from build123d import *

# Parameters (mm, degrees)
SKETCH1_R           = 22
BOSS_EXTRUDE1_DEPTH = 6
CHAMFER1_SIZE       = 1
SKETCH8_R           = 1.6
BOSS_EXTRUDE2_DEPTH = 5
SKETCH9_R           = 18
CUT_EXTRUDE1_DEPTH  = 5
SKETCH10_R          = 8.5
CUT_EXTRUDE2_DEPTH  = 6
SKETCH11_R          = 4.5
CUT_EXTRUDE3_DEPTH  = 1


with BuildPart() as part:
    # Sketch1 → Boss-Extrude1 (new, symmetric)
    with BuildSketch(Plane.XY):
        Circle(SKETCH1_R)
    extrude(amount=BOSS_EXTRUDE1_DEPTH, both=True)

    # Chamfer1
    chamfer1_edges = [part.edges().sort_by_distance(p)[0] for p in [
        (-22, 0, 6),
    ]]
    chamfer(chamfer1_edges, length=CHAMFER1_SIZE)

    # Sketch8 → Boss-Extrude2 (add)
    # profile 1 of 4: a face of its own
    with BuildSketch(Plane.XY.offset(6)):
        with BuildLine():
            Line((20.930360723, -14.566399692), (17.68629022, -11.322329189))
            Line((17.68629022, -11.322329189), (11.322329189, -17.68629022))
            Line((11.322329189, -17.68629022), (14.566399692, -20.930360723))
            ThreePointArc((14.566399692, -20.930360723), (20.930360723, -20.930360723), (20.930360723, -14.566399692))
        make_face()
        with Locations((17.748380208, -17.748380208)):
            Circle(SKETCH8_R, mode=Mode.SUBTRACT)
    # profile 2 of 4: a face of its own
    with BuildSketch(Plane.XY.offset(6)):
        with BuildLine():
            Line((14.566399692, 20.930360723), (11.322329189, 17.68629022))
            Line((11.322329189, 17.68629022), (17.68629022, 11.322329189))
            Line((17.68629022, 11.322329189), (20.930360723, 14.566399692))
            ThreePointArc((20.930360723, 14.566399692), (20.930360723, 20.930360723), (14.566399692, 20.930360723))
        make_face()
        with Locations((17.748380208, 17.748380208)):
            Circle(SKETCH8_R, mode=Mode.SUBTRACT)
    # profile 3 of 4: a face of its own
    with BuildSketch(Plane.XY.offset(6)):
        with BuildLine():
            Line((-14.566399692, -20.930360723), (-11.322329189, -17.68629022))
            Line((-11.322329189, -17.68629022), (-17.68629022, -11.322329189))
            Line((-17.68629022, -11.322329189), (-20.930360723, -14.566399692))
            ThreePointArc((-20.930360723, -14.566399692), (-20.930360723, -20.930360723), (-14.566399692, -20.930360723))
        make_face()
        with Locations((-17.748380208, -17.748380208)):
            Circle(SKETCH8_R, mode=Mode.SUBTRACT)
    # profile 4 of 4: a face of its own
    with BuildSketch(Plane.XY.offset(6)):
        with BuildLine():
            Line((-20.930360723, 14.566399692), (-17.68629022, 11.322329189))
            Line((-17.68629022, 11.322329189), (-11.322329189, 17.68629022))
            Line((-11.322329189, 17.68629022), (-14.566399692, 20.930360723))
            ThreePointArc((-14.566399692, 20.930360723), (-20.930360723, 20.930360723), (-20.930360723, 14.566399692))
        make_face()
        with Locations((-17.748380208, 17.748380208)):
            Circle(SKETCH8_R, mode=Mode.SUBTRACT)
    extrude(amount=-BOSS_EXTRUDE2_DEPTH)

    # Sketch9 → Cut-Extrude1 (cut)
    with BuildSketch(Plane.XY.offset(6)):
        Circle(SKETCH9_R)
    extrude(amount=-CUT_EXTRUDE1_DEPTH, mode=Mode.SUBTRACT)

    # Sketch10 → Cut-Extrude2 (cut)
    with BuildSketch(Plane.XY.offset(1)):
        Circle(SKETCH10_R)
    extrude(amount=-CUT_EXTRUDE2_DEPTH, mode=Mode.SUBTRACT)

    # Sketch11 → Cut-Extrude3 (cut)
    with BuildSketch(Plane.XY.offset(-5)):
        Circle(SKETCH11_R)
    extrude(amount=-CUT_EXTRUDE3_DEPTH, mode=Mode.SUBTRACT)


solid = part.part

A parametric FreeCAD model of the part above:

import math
import FreeCAD as App
import Part
import Sketcher
Q = App.Units.Quantity


def edges_at(feature, points):
    """Names of the edges that pass closest to the given points."""
    edges = feature.Shape.Edges
    near = lambda p: min(range(len(edges)), key=lambda i: edges[i].distToShape(Part.Vertex(*p))[0])
    return sorted({f"Edge{near(p) + 1}" for p in points})

doc = App.newDocument("Part")
params = doc.addObject("Spreadsheet::Sheet", "Params")
for row, (alias, value) in enumerate([
    ("sketch1_diameter", "44 mm"),
    ("pad1_length", "12 mm"),
    ("chamfer_size", "1 mm"),
    ("sketch2_diameter", "3.2 mm"),
    ("sketch2_radius", "4.5 mm"),
    ("pad2_length", "5 mm"),
    ("sketch3_diameter", "36 mm"),
    ("pocket1_length", "5 mm"),
    ("sketch4_diameter", "17 mm"),
    ("pocket2_length", "6 mm"),
    ("sketch5_diameter", "9 mm"),
    ("pocket3_length", "1 mm"),
], start=1):
    params.set(f"A{row}", alias)
    params.set(f"B{row}", "=" + value)
    params.setAlias(f"B{row}", alias)

body = doc.addObject("PartDesign::Body", "Body")

# Sketch on XY plane
sketch1 = doc.addObject("Sketcher::SketchObject", "Sketch")
body.addObject(sketch1)
sketch1.AttachmentSupport = (doc.XY_Plane, [""])
sketch1.MapMode = "FlatFace"
sketch1.addGeometry(Part.Circle(App.Vector(0, 0, 0), App.Vector(0, 0, 1), 22), False)
sketch1.addConstraint(Sketcher.Constraint("Coincident", 0, 3, -1, 1))
sketch1.addConstraint(Sketcher.Constraint("Diameter", 0, Q("44 mm")))
sketch1.setExpression("Constraints[1]", "Params.sketch1_diameter")
pad1 = doc.addObject("PartDesign::Pad", "Pad")
body.addObject(pad1)
pad1.Profile = sketch1
pad1.setExpression("Length", "Params.pad1_length")
pad1.Midplane = True
doc.recompute()

chamfer = doc.addObject("PartDesign::Chamfer", "Chamfer")
body.addObject(chamfer)
chamfer.Base = (pad1, edges_at(pad1, [(-22, 0, 6)]))
chamfer.setExpression("Size", "Params.chamfer_size")

# Sketch on XY plane
sketch2 = doc.addObject("Sketcher::SketchObject", "Sketch001")
body.addObject(sketch2)
sketch2.AttachmentSupport = (doc.XY_Plane, [""])
sketch2.MapMode = "FlatFace"
sketch2.AttachmentOffset = App.Placement(App.Vector(0, 0, 6), App.Rotation())
sketch2.addGeometry(Part.LineSegment(App.Vector(20.9, -14.6, 0), App.Vector(17.7, -11.3, 0)), False)
sketch2.addGeometry(Part.LineSegment(App.Vector(17.7, -11.3, 0), App.Vector(11.3, -17.7, 0)), False)
sketch2.addGeometry(Part.LineSegment(App.Vector(11.3, -17.7, 0), App.Vector(14.6, -20.9, 0)), False)
sketch2.addGeometry(Part.ArcOfCircle(Part.Circle(App.Vector(17.7, -17.7, 0), App.Vector(0, 0, 1), 4.5), math.radians(-135), math.radians(45)), False)
sketch2.addGeometry(Part.Circle(App.Vector(17.7, -17.7, 0), App.Vector(0, 0, 1), 1.6), False)
sketch2.addGeometry(Part.LineSegment(App.Vector(14.6, 20.9, 0), App.Vector(11.3, 17.7, 0)), False)
sketch2.addGeometry(Part.LineSegment(App.Vector(11.3, 17.7, 0), App.Vector(17.7, 11.3, 0)), False)
sketch2.addGeometry(Part.LineSegment(App.Vector(17.7, 11.3, 0), App.Vector(20.9, 14.6, 0)), False)
sketch2.addGeometry(Part.ArcOfCircle(Part.Circle(App.Vector(17.7, 17.7, 0), App.Vector(0, 0, 1), 4.5), math.radians(-45), math.radians(135)), False)
sketch2.addGeometry(Part.Circle(App.Vector(17.7, 17.7, 0), App.Vector(0, 0, 1), 1.6), False)
sketch2.addGeometry(Part.LineSegment(App.Vector(-14.6, -20.9, 0), App.Vector(-11.3, -17.7, 0)), False)
sketch2.addGeometry(Part.LineSegment(App.Vector(-11.3, -17.7, 0), App.Vector(-17.7, -11.3, 0)), False)
sketch2.addGeometry(Part.LineSegment(App.Vector(-17.7, -11.3, 0), App.Vector(-20.9, -14.6, 0)), False)
sketch2.addGeometry(Part.ArcOfCircle(Part.Circle(App.Vector(-17.7, -17.7, 0), App.Vector(0, 0, 1), 4.5), math.radians(135), math.radians(315)), False)
sketch2.addGeometry(Part.Circle(App.Vector(-17.7, -17.7, 0), App.Vector(0, 0, 1), 1.6), False)
sketch2.addGeometry(Part.LineSegment(App.Vector(-20.9, 14.6, 0), App.Vector(-17.7, 11.3, 0)), False)
sketch2.addGeometry(Part.LineSegment(App.Vector(-17.7, 11.3, 0), App.Vector(-11.3, 17.7, 0)), False)
sketch2.addGeometry(Part.LineSegment(App.Vector(-11.3, 17.7, 0), App.Vector(-14.6, 20.9, 0)), False)
sketch2.addGeometry(Part.ArcOfCircle(Part.Circle(App.Vector(-17.7, 17.7, 0), App.Vector(0, 0, 1), 4.5), math.radians(45), math.radians(225)), False)
sketch2.addGeometry(Part.Circle(App.Vector(-17.7, 17.7, 0), App.Vector(0, 0, 1), 1.6), False)
sketch2.addConstraint(Sketcher.Constraint("Coincident", 0, 2, 1, 1))
sketch2.addConstraint(Sketcher.Constraint("Coincident", 1, 2, 2, 1))
sketch2.addConstraint(Sketcher.Constraint("Tangent", 2, 2, 3, 1))
sketch2.addConstraint(Sketcher.Constraint("Tangent", 3, 2, 0, 1))
sketch2.addConstraint(Sketcher.Constraint("Coincident", 5, 2, 6, 1))
sketch2.addConstraint(Sketcher.Constraint("Coincident", 6, 2, 7, 1))
sketch2.addConstraint(Sketcher.Constraint("Tangent", 7, 2, 8, 1))
sketch2.addConstraint(Sketcher.Constraint("Tangent", 8, 2, 5, 1))
sketch2.addConstraint(Sketcher.Constraint("Coincident", 10, 2, 11, 1))
sketch2.addConstraint(Sketcher.Constraint("Coincident", 11, 2, 12, 1))
sketch2.addConstraint(Sketcher.Constraint("Tangent", 12, 2, 13, 1))
sketch2.addConstraint(Sketcher.Constraint("Tangent", 13, 2, 10, 1))
sketch2.addConstraint(Sketcher.Constraint("Coincident", 15, 2, 16, 1))
sketch2.addConstraint(Sketcher.Constraint("Coincident", 16, 2, 17, 1))
sketch2.addConstraint(Sketcher.Constraint("Tangent", 17, 2, 18, 1))
sketch2.addConstraint(Sketcher.Constraint("Tangent", 18, 2, 15, 1))
sketch2.addConstraint(Sketcher.Constraint("Coincident", 4, 3, 3, 3))
sketch2.addConstraint(Sketcher.Constraint("Coincident", 9, 3, 8, 3))
sketch2.addConstraint(Sketcher.Constraint("Coincident", 14, 3, 13, 3))
sketch2.addConstraint(Sketcher.Constraint("Coincident", 19, 3, 18, 3))
sketch2.addConstraint(Sketcher.Constraint("Equal", 3, 8))
sketch2.addConstraint(Sketcher.Constraint("Equal", 4, 9))
sketch2.addConstraint(Sketcher.Constraint("Equal", 8, 13))
sketch2.addConstraint(Sketcher.Constraint("Equal", 9, 14))
sketch2.addConstraint(Sketcher.Constraint("Equal", 13, 18))
sketch2.addConstraint(Sketcher.Constraint("Equal", 14, 19))
sketch2.addConstraint(Sketcher.Constraint("Symmetric", 8, 3, 13, 3, -1, 1))
sketch2.addConstraint(Sketcher.Constraint("Symmetric", 3, 3, 18, 3, -1, 1))
sketch2.addConstraint(Sketcher.Constraint("Symmetric", 5, 2, 10, 2, -1, 1))
sketch2.addConstraint(Sketcher.Constraint("Symmetric", 6, 2, 11, 2, -1, 1))
sketch2.addConstraint(Sketcher.Constraint("Symmetric", 0, 2, 15, 2, -1, 1))
sketch2.addConstraint(Sketcher.Constraint("Symmetric", 1, 2, 16, 2, -1, 1))
sketch2.addConstraint(Sketcher.Constraint("Symmetric", 3, 3, 13, 3, -2))
sketch2.addConstraint(Sketcher.Constraint("Symmetric", 1, 2, 10, 2, -2))
sketch2.addConstraint(Sketcher.Constraint("Symmetric", 0, 2, 11, 2, -2))
sketch2.addConstraint(Sketcher.Constraint("Perpendicular", 0, 1))
sketch2.addConstraint(Sketcher.Constraint("Perpendicular", 1, 2))
sketch2.addConstraint(Sketcher.Constraint("Perpendicular", 2, 5))
sketch2.addConstraint(Sketcher.Constraint("Diameter", 4, Q("3.2 mm")))
sketch2.addConstraint(Sketcher.Constraint("Radius", 3, Q("4.5 mm")))
sketch2.addConstraint(Sketcher.Constraint("DistanceX", -1, 1, 2, 2, Q("14.5664 mm")))
sketch2.addConstraint(Sketcher.Constraint("DistanceY", 3, 2, -1, 1, Q("14.5664 mm")))
sketch2.addConstraint(Sketcher.Constraint("Distance", 0, Q("4.587809 mm")))
sketch2.setExpression("Constraints[38]", "Params.sketch2_diameter")
sketch2.setExpression("Constraints[39]", "Params.sketch2_radius")
pad2 = doc.addObject("PartDesign::Pad", "Pad001")
body.addObject(pad2)
pad2.Profile = sketch2
pad2.setExpression("Length", "Params.pad2_length")
pad2.Reversed = True

# Sketch on XY plane
sketch3 = doc.addObject("Sketcher::SketchObject", "Sketch002")
body.addObject(sketch3)
sketch3.AttachmentSupport = (doc.XY_Plane, [""])
sketch3.MapMode = "FlatFace"
sketch3.AttachmentOffset = App.Placement(App.Vector(0, 0, 6), App.Rotation())
sketch3.addGeometry(Part.Circle(App.Vector(0, 0, 0), App.Vector(0, 0, 1), 18), False)
sketch3.addConstraint(Sketcher.Constraint("Coincident", 0, 3, -1, 1))
sketch3.addConstraint(Sketcher.Constraint("Diameter", 0, Q("36 mm")))
sketch3.setExpression("Constraints[1]", "Params.sketch3_diameter")
pocket1 = doc.addObject("PartDesign::Pocket", "Pocket")
body.addObject(pocket1)
pocket1.Profile = sketch3
pocket1.setExpression("Length", "Params.pocket1_length")

# Sketch on XY plane
sketch4 = doc.addObject("Sketcher::SketchObject", "Sketch003")
body.addObject(sketch4)
sketch4.AttachmentSupport = (doc.XY_Plane, [""])
sketch4.MapMode = "FlatFace"
sketch4.AttachmentOffset = App.Placement(App.Vector(0, 0, 1), App.Rotation())
sketch4.addGeometry(Part.Circle(App.Vector(0, 0, 0), App.Vector(0, 0, 1), 8), False)
sketch4.addConstraint(Sketcher.Constraint("Coincident", 0, 3, -1, 1))
sketch4.addConstraint(Sketcher.Constraint("Diameter", 0, Q("17 mm")))
sketch4.setExpression("Constraints[1]", "Params.sketch4_diameter")
pocket2 = doc.addObject("PartDesign::Pocket", "Pocket001")
body.addObject(pocket2)
pocket2.Profile = sketch4
pocket2.setExpression("Length", "Params.pocket2_length")

# Sketch on XY plane
sketch5 = doc.addObject("Sketcher::SketchObject", "Sketch004")
body.addObject(sketch5)
sketch5.AttachmentSupport = (doc.XY_Plane, [""])
sketch5.MapMode = "FlatFace"
sketch5.AttachmentOffset = App.Placement(App.Vector(0, 0, -5), App.Rotation())
sketch5.addGeometry(Part.Circle(App.Vector(0, 0, 0), App.Vector(0, 0, 1), 4.5), False)
sketch5.addConstraint(Sketcher.Constraint("Coincident", 0, 3, -1, 1))
sketch5.addConstraint(Sketcher.Constraint("Diameter", 0, Q("9 mm")))
sketch5.setExpression("Constraints[1]", "Params.sketch5_diameter")
pocket3 = doc.addObject("PartDesign::Pocket", "Pocket002")
body.addObject(pocket3)
pocket3.Profile = sketch5
pocket3.setExpression("Length", "Params.pocket3_length")

doc.recompute()
